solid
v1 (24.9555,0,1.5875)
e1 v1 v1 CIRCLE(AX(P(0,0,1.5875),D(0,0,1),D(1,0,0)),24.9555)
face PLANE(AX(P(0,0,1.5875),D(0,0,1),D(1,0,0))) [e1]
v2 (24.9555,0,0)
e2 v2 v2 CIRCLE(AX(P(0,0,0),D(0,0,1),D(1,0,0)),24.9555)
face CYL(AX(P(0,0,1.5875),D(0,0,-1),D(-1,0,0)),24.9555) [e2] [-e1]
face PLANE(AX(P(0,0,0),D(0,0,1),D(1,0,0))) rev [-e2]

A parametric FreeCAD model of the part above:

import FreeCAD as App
import Part
import Sketcher

V = App.Vector
Q = App.Units.Quantity

doc = App.newDocument("Part")
body = doc.addObject("PartDesign::Body", "Body")

sketch1 = body.newObject("Sketcher::SketchObject", "Sketch")
sketch1.AttachmentSupport = (doc.getObject("XY_Plane"), [""])
sketch1.MapMode = "FlatFace"
sketch1.addGeometry(Part.Circle(V(0, 0, 0), V(0, 0, 1), 25), False)
sketch1.addConstraint([
    Sketcher.Constraint("Coincident", 0, 3, -1, 1),
    Sketcher.Constraint("Diameter", 0, Q("1.965 in")),
])
pad1 = body.newObject("PartDesign::Pad", "Pad")
pad1.Profile = sketch1
pad1.Length = Q("0.0625 in")

doc.recompute()
